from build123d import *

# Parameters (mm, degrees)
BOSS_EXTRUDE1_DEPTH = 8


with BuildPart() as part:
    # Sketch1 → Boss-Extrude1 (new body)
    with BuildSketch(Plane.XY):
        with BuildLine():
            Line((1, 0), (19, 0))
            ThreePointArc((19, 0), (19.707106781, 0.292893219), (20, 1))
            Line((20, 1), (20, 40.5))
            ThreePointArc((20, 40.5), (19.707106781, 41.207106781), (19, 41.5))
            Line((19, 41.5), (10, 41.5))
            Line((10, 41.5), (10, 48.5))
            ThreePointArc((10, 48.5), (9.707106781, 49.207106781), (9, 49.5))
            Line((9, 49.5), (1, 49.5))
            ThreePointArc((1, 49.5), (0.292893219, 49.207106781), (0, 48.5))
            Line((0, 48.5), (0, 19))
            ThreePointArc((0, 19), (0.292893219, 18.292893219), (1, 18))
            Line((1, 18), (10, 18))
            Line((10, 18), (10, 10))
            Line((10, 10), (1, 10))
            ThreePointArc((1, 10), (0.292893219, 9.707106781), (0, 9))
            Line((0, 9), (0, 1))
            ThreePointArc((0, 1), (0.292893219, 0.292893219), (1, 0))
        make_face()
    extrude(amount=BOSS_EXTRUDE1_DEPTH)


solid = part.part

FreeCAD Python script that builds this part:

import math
import FreeCAD as App
import Part
import Sketcher
Q = App.Units.Quantity

doc = App.newDocument("Part")
body = doc.addObject("PartDesign::Body", "Body")

sketch1 = doc.addObject("Sketcher::SketchObject", "Sketch")
body.addObject(sketch1)
sketch1.AttachmentSupport = (doc.XY_Plane, [""])
sketch1.MapMode = "FlatFace"
sketch1.addGeometry(Part.LineSegment(App.Vector(1, 0, 0), App.Vector(19, 0, 0)), False)
sketch1.addGeometry(Part.ArcOfCircle(Part.Circle(App.Vector(19, 1, 0), App.Vector(0, 0, 1), 1), math.radians(-90), math.radians(0)), False)
sketch1.addGeometry(Part.LineSegment(App.Vector(20, 1, 0), App.Vector(20, 40.5, 0)), False)
sketch1.addGeometry(Part.ArcOfCircle(Part.Circle(App.Vector(19, 40.5, 0), App.Vector(0, 0, 1), 1), math.radians(0), math.radians(90)), False)
sketch1.addGeometry(Part.LineSegment(App.Vector(19, 41.5, 0), App.Vector(10, 41.5, 0)), False)
sketch1.addGeometry(Part.LineSegment(App.Vector(10, 41.5, 0), App.Vector(10, 48.5, 0)), False)
sketch1.addGeometry(Part.ArcOfCircle(Part.Circle(App.Vector(9, 48.5, 0), App.Vector(0, 0, 1), 1), math.radians(0), math.radians(90)), False)
sketch1.addGeometry(Part.LineSegment(App.Vector(9, 49.5, 0), App.Vector(1, 49.5, 0)), False)
sketch1.addGeometry(Part.ArcOfCircle(Part.Circle(App.Vector(1, 48.5, 0), App.Vector(0, 0, 1), 1), math.radians(90), math.radians(180)), False)
sketch1.addGeometry(Part.LineSegment(App.Vector(0, 48.5, 0), App.Vector(0, 19, 0)), False)
sketch1.addGeometry(Part.ArcOfCircle(Part.Circle(App.Vector(1, 19, 0), App.Vector(0, 0, 1), 1), math.radians(-180), math.radians(-90)), False)
sketch1.addGeometry(Part.LineSegment(App.Vector(1, 18, 0), App.Vector(10, 18, 0)), False)
sketch1.addGeometry(Part.LineSegment(App.Vector(10, 18, 0), App.Vector(10, 10, 0)), False)
sketch1.addGeometry(Part.LineSegment(App.Vector(10, 10, 0), App.Vector(1, 10, 0)), False)
sketch1.addGeometry(Part.ArcOfCircle(Part.Circle(App.Vector(1, 9, 0), App.Vector(0, 0, 1), 1), math.radians(90), math.radians(180)), False)
sketch1.addGeometry(Part.LineSegment(App.Vector(0, 9, 0), App.Vector(0, 1, 0)), False)
sketch1.addGeometry(Part.ArcOfCircle(Part.Circle(App.Vector(1, 1, 0), App.Vector(0, 0, 1), 1), math.radians(-180), math.radians(-90)), False)
sketch1.addConstraint(Sketcher.Constraint("Tangent", 0, 2, 1, 1))
sketch1.addConstraint(Sketcher.Constraint("Tangent", 1, 2, 2, 1))
sketch1.addConstraint(Sketcher.Constraint("Tangent", 2, 2, 3, 1))
sketch1.addConstraint(Sketcher.Constraint("Tangent", 3, 2, 4, 1))
sketch1.addConstraint(Sketcher.Constraint("Coincident", 4, 2, 5, 1))
sketch1.addConstraint(Sketcher.Constraint("Tangent", 5, 2, 6, 1))
sketch1.addConstraint(Sketcher.Constraint("Tangent", 6, 2, 7, 1))
sketch1.addConstraint(Sketcher.Constraint("Tangent", 7, 2, 8, 1))
sketch1.addConstraint(Sketcher.Constraint("Tangent", 8, 2, 9, 1))
sketch1.addConstraint(Sketcher.Constraint("Tangent", 9, 2, 10, 1))
sketch1.addConstraint(Sketcher.Constraint("Tangent", 10, 2, 11, 1))
sketch1.addConstraint(Sketcher.Constraint("Coincident", 11, 2, 12, 1))
sketch1.addConstraint(Sketcher.Constraint("Coincident", 12, 2, 13, 1))
sketch1.addConstraint(Sketcher.Constraint("Tangent", 13, 2, 14, 1))
sketch1.addConstraint(Sketcher.Constraint("Tangent", 14, 2, 15, 1))
sketch1.addConstraint(Sketcher.Constraint("Tangent", 15, 2, 16, 1))
sketch1.addConstraint(Sketcher.Constraint("Tangent", 16, 2, 0, 1))
sketch1.addConstraint(Sketcher.Constraint("Horizontal", 0))
sketch1.addConstraint(Sketcher.Constraint("Vertical", 2))
sketch1.addConstraint(Sketcher.Constraint("Horizontal", 4))
sketch1.addConstraint(Sketcher.Constraint("Vertical", 5))
sketch1.addConstraint(Sketcher.Constraint("Horizontal", 7))
sketch1.addConstraint(Sketcher.Constraint("Vertical", 9))
sketch1.addConstraint(Sketcher.Constraint("Horizontal", 11))
sketch1.addConstraint(Sketcher.Constraint("Vertical", 12))
sketch1.addConstraint(Sketcher.Constraint("Horizontal", 13))
sketch1.addConstraint(Sketcher.Constraint("Vertical", 15))
sketch1.addConstraint(Sketcher.Constraint("Equal", 1, 3))
sketch1.addConstraint(Sketcher.Constraint("Equal", 3, 6))
sketch1.addConstraint(Sketcher.Constraint("Equal", 6, 8))
sketch1.addConstraint(Sketcher.Constraint("Equal", 8, 10))
sketch1.addConstraint(Sketcher.Constraint("Equal", 10, 14))
sketch1.addConstraint(Sketcher.Constraint("Equal", 14, 16))
sketch1.addConstraint(Sketcher.Constraint("PointOnObject", 0, 2, -1))
sketch1.addConstraint(Sketcher.Constraint("PointOnObject", 8, 2, -2))
sketch1.addConstraint(Sketcher.Constraint("PointOnObject", 14, 2, -2))
sketch1.addConstraint(Sketcher.Constraint("Vertical", 5, 2, 11, 2))
sketch1.addConstraint(Sketcher.Constraint("Equal", 4, 11))
sketch1.addConstraint(Sketcher.Constraint("Equal", 7, 12))
sketch1.addConstraint(Sketcher.Constraint("Equal", 12, 15))
sketch1.addConstraint(Sketcher.Constraint("Radius", 1, Q("1 mm")))
sketch1.addConstraint(Sketcher.Constraint("DistanceX", 0, 1, 0, 2, Q("18 mm")))
sketch1.addConstraint(Sketcher.Constraint("DistanceY", 5, 1, 5, 2, Q("7 mm")))
sketch1.addConstraint(Sketcher.Constraint("DistanceY", 2, 1, 2, 2, Q("39.5 mm")))
pad1 = doc.addObject("PartDesign::Pad", "Pad")
body.addObject(pad1)
pad1.Profile = sketch1
pad1.Length = 8

doc.recompute()
